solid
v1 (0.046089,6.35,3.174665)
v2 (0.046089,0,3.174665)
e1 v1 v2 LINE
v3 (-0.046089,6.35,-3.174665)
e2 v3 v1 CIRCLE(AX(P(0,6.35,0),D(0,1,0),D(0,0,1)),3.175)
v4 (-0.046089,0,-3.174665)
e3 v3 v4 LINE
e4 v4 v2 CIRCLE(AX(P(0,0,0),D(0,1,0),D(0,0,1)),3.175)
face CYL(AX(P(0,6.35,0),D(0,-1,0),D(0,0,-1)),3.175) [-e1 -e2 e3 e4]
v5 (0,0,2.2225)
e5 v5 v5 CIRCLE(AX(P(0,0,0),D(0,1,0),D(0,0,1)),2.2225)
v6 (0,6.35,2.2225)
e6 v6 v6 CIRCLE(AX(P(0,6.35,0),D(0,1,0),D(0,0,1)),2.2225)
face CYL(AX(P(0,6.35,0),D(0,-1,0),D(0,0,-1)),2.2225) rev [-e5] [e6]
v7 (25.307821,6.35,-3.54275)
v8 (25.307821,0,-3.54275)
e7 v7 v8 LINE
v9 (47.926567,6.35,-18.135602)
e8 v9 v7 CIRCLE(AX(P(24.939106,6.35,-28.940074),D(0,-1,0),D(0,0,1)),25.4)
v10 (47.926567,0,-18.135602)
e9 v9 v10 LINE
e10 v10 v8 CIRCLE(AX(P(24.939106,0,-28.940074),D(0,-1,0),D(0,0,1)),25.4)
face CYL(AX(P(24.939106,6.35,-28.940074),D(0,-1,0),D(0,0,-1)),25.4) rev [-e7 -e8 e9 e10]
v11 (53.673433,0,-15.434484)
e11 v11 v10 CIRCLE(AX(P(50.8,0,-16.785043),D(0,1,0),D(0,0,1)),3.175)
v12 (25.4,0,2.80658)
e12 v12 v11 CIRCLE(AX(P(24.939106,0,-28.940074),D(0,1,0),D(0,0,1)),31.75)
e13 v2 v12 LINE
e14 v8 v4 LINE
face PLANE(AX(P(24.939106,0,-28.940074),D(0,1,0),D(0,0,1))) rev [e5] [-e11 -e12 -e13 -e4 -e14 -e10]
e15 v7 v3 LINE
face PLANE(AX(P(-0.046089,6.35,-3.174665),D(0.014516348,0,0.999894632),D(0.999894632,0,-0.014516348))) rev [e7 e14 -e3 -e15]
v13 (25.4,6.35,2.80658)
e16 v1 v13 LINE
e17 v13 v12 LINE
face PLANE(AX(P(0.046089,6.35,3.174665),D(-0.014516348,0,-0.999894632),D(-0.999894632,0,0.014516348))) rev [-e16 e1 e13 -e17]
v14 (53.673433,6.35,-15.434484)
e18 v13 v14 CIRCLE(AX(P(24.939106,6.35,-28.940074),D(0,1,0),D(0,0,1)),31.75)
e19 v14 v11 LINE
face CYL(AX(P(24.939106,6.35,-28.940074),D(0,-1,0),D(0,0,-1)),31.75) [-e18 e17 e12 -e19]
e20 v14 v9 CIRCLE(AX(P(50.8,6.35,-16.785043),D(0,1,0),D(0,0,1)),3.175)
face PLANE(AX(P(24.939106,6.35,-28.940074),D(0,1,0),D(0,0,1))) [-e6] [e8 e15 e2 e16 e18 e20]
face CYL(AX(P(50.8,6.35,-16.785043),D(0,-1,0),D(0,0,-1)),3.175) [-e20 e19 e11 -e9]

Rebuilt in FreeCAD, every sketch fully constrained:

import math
import FreeCAD as App
import Part
import Sketcher
Q = App.Units.Quantity

doc = App.newDocument("Part")
body = doc.addObject("PartDesign::Body", "Body")

# Sketch on XZ plane
sketch1 = body.newObject("Sketcher::SketchObject", "Sketch")
sketch1.AttachmentSupport = (doc.getObject("XZ_Plane"), [""])
sketch1.MapMode = "FlatFace"
sketch1.addGeometry([
    Part.LineSegment(App.Vector(25.307821, -3.54275, 0), App.Vector(-0.046089, -3.174665, 0)),  # 0
    Part.ArcOfCircle(Part.Circle(App.Vector(0, 0, 0), App.Vector(0, 0, 1), 3.175), math.radians(89.168245), math.radians(269.168245)),  # 1
    Part.LineSegment(App.Vector(0.046089, 3.174665, 0), App.Vector(25.4, 2.80658, 0)),  # 2
    Part.ArcOfCircle(Part.Circle(App.Vector(24.939106, -28.940074, 0), App.Vector(0, 0, 1), 31.75), math.radians(25.17427), math.radians(89.168245)),  # 3
    Part.ArcOfCircle(Part.Circle(App.Vector(50.8, -16.785043, 0), App.Vector(0, 0, 1), 3.175), math.radians(-154.82573), math.radians(25.17427)),  # 4
    Part.ArcOfCircle(Part.Circle(App.Vector(24.939106, -28.940074, 0), App.Vector(0, 0, 1), 25.4), math.radians(25.17427), math.radians(89.168245)),  # 5
    Part.Circle(App.Vector(0, 0, 0), App.Vector(0, 0, 1), 2.2225),  # 6
], False)
sketch1.addConstraint([
    Sketcher.Constraint("Tangent", 0, 2, 1, 2),
    Sketcher.Constraint("Tangent", 1, 1, 2, 1),
    Sketcher.Constraint("Tangent", 2, 2, 3, 2),
    Sketcher.Constraint("Tangent", 3, 1, 4, 2),
    Sketcher.Constraint("Tangent", 4, 1, 5, 1),
    Sketcher.Constraint("Tangent", 5, 2, 0, 1),
    Sketcher.Constraint("Coincident", 1, 3, -1, 1),
    Sketcher.Constraint("Coincident", 6, 3, -1, 1),
    Sketcher.Constraint("Coincident", 5, 3, 3, 3),
    Sketcher.Constraint("Equal", 1, 4),
    Sketcher.Constraint("Radius", 5, Q("1 in")),
    Sketcher.Constraint("Radius", 3, Q("1.25 in")),
    Sketcher.Constraint("Diameter", 6, Q("0.175 in")),
    Sketcher.Constraint("DistanceX", -1, 1, 4, 3, Q("2 in")),
    Sketcher.Constraint("DistanceX", -1, 1, 2, 2, Q("1 in")),
    Sketcher.Constraint("DistanceY", 4, 1, -1, 1, Q("0.7140001 in")),
])
pad1 = body.newObject("PartDesign::Pad", "Pad")
pad1.Profile = sketch1
pad1.Length = Q("0.25 in")
pad1.Reversed = True

doc.recompute()
